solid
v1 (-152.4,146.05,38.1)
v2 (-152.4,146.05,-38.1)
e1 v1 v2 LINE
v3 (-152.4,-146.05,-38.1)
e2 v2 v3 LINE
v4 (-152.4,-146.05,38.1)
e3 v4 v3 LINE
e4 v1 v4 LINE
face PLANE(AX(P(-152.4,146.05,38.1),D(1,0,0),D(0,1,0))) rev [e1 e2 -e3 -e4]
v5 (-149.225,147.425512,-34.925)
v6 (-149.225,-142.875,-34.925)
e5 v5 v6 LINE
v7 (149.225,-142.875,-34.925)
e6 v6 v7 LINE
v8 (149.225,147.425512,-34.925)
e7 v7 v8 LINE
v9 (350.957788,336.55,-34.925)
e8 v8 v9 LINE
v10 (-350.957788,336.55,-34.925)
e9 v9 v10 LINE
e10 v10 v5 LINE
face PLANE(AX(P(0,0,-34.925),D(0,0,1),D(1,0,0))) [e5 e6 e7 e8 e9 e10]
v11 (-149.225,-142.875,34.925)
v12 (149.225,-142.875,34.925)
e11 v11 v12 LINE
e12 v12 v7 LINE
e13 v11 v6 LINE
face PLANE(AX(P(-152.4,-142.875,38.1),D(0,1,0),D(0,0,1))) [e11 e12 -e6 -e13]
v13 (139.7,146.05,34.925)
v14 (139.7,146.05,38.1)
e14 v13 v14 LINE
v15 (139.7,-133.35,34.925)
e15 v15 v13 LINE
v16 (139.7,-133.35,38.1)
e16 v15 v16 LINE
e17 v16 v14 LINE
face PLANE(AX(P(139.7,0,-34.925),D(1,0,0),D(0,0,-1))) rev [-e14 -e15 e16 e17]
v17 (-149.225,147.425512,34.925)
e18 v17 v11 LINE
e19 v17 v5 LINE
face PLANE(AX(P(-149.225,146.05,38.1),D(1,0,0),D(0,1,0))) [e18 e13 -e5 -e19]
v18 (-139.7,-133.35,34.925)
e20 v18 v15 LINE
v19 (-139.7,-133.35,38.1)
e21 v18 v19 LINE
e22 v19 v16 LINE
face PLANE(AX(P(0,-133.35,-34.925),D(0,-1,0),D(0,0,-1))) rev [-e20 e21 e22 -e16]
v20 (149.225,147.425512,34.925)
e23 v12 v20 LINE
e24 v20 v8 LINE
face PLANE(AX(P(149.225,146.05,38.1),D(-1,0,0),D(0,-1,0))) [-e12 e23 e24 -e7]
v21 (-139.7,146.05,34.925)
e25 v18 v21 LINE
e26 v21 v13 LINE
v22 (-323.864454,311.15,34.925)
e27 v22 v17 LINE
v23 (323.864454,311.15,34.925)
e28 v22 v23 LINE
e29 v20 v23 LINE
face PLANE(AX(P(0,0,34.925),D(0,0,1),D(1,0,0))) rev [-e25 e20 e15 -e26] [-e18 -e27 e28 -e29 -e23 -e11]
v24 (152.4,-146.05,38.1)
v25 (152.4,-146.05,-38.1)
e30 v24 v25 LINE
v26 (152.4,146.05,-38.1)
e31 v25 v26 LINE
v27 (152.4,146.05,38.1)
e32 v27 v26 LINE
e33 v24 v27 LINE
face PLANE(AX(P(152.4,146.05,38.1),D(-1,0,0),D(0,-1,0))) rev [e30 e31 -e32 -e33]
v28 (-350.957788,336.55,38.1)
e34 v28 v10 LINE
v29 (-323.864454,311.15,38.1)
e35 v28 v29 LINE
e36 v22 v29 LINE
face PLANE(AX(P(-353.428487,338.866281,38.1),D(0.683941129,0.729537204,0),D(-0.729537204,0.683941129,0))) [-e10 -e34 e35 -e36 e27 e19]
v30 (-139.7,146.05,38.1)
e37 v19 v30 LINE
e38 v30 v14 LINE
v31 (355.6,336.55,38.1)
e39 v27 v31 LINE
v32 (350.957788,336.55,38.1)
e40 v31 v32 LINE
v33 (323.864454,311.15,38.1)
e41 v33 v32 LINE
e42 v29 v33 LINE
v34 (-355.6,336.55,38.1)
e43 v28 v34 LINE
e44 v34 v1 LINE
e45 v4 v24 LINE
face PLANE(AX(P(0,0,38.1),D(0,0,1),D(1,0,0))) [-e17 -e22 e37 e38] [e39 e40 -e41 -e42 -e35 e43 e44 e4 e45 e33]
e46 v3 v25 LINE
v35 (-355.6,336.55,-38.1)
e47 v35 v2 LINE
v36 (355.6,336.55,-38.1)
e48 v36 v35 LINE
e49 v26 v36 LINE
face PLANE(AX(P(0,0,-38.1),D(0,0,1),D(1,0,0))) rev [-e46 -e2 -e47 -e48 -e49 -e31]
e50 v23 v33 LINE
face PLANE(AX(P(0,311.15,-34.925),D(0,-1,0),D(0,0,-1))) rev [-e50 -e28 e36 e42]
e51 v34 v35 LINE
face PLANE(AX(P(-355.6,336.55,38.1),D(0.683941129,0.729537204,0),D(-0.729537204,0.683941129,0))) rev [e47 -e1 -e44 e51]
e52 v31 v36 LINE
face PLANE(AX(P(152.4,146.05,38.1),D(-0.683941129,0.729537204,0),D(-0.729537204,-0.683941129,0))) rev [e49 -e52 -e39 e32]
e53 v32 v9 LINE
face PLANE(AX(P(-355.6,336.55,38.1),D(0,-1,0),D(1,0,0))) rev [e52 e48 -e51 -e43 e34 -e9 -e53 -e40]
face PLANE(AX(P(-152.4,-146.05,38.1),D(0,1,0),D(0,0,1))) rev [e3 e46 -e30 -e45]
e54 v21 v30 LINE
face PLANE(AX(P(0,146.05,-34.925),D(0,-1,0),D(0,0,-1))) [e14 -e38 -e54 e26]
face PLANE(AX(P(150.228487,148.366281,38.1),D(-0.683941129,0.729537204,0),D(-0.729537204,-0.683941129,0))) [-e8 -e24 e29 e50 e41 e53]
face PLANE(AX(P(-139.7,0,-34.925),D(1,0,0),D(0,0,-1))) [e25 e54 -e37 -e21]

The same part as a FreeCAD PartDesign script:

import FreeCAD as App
import Part
import Sketcher
from FreeCAD import Vector
Q = App.Units.Quantity


def faces_at(feature, points):
    """Names of the faces that lie closest to the given points."""
    faces = feature.Shape.Faces
    near = lambda p: min(range(len(faces)), key=lambda i: faces[i].distToShape(Part.Vertex(*p))[0])
    return sorted({f"Face{near(p) + 1}" for p in points})


def add_polygon(sketch, points):
    """Adds a closed chain of lines whose ends are joined by coincident constraints."""
    first, n = sketch.GeometryCount, len(points)
    for a, b in zip(points, points[1:] + points[:1]):
        sketch.addGeometry(Part.LineSegment(App.Vector(*a, 0), App.Vector(*b, 0)), False)
    for i in range(n):
        sketch.addConstraint(Sketcher.Constraint("Coincident", first + i, 2, first + (i + 1) % n, 1))

doc = App.newDocument("Part")
body = doc.addObject("PartDesign::Body", "Body")

sketch1 = doc.addObject("Sketcher::SketchObject", "Sketch")
body.addObject(sketch1)
sketch1.AttachmentSupport = (doc.XY_Plane, [""])
sketch1.MapMode = "FlatFace"
add_polygon(sketch1, [(-152.4, 146.05), (-152.4, -146.05), (152.4, -146.05), (152.4, 146.05), (355.6, 336.55), (-355.6, 336.55)])
sketch1.addConstraint([
    Sketcher.Constraint("Vertical", 0),
    Sketcher.Constraint("Horizontal", 1),
    Sketcher.Constraint("Vertical", 2),
    Sketcher.Constraint("Horizontal", 4),
    Sketcher.Constraint("Symmetric", 0, 2, 2, 2, -1, 1),
    Sketcher.Constraint("Horizontal", 2, 2, 5, 2),
    Sketcher.Constraint("Equal", 3, 5),
    Sketcher.Constraint("DistanceX", 1, 1, 1, 2, Q("12 in")),
    Sketcher.Constraint("DistanceX", 4, 2, 4, 1, Q("28 in")),
    Sketcher.Constraint("DistanceY", 0, 2, 0, 1, Q("11.5 in")),
    Sketcher.Constraint("DistanceY", 1, 2, 3, 2, Q("19 in")),
])
pad1 = doc.addObject("PartDesign::Pad", "Pad")
body.addObject(pad1)
pad1.Profile = sketch1
pad1.Length = Q("3 in")
pad1.Midplane = True
doc.recompute()

thickness = doc.addObject("PartDesign::Thickness", "Thickness")
body.addObject(thickness)
thickness.Base = (pad1, faces_at(pad1, [(0, 336.55, 0)]))
thickness.Value = Q("0.125 in")
thickness.Reversed = True
thickness.Join = "Intersection"

sketch2 = doc.addObject("Sketcher::SketchObject", "Sketch001")
body.addObject(sketch2)
sketch2.AttachmentSupport = (doc.XY_Plane, [""])
sketch2.MapMode = "FlatFace"
sketch2.AttachmentOffset = App.Placement(Vector(0, 0, 1.5 * 25.4), App.Rotation())
add_polygon(sketch2, [(-139.7, 146.05), (-139.7, -133.35), (139.7, -133.35), (139.7, 146.05)])
add_polygon(sketch2, [(-350.957788, 336.55), (-323.864454, 311.15), (323.864454, 311.15), (350.957788, 336.55)])
sketch2.addConstraint([
    Sketcher.Constraint("Vertical", 0),
    Sketcher.Constraint("Horizontal", 1),
    Sketcher.Constraint("Vertical", 2),
    Sketcher.Constraint("Horizontal", 3),
    Sketcher.Constraint("Horizontal", 5),
    Sketcher.Constraint("Horizontal", 7),
    Sketcher.Constraint("Equal", 3, 0),
    Sketcher.Constraint("Equal", 4, 6),
    Sketcher.Constraint("DistanceX", 1, 1, 1, 2, Q("11 in")),
    Sketcher.Constraint("DistanceY", 5, 2, 6, 2, Q("1 in")),
    Sketcher.Constraint("DistanceX", 0, 2, -1, 1, Q("5.5 in")),
    Sketcher.Constraint("DistanceY", 3, 2, 4, 2, Q("6.5 in")),
    Sketcher.Constraint("DistanceY", 0, 2, -1, 1, Q("5.25 in")),
    Sketcher.Constraint("Distance", 4, 37.137699),
    Sketcher.Constraint("DistanceX", 5, 1, 5, 2, 647.728909),
    Sketcher.Constraint("DistanceX", 4, 2, -1, 1, 323.864454),
])
pocket1 = doc.addObject("PartDesign::Pocket", "Pocket")
body.addObject(pocket1)
pocket1.Profile = sketch2
pocket1.Length = Q("2.875 in")

doc.recompute()
